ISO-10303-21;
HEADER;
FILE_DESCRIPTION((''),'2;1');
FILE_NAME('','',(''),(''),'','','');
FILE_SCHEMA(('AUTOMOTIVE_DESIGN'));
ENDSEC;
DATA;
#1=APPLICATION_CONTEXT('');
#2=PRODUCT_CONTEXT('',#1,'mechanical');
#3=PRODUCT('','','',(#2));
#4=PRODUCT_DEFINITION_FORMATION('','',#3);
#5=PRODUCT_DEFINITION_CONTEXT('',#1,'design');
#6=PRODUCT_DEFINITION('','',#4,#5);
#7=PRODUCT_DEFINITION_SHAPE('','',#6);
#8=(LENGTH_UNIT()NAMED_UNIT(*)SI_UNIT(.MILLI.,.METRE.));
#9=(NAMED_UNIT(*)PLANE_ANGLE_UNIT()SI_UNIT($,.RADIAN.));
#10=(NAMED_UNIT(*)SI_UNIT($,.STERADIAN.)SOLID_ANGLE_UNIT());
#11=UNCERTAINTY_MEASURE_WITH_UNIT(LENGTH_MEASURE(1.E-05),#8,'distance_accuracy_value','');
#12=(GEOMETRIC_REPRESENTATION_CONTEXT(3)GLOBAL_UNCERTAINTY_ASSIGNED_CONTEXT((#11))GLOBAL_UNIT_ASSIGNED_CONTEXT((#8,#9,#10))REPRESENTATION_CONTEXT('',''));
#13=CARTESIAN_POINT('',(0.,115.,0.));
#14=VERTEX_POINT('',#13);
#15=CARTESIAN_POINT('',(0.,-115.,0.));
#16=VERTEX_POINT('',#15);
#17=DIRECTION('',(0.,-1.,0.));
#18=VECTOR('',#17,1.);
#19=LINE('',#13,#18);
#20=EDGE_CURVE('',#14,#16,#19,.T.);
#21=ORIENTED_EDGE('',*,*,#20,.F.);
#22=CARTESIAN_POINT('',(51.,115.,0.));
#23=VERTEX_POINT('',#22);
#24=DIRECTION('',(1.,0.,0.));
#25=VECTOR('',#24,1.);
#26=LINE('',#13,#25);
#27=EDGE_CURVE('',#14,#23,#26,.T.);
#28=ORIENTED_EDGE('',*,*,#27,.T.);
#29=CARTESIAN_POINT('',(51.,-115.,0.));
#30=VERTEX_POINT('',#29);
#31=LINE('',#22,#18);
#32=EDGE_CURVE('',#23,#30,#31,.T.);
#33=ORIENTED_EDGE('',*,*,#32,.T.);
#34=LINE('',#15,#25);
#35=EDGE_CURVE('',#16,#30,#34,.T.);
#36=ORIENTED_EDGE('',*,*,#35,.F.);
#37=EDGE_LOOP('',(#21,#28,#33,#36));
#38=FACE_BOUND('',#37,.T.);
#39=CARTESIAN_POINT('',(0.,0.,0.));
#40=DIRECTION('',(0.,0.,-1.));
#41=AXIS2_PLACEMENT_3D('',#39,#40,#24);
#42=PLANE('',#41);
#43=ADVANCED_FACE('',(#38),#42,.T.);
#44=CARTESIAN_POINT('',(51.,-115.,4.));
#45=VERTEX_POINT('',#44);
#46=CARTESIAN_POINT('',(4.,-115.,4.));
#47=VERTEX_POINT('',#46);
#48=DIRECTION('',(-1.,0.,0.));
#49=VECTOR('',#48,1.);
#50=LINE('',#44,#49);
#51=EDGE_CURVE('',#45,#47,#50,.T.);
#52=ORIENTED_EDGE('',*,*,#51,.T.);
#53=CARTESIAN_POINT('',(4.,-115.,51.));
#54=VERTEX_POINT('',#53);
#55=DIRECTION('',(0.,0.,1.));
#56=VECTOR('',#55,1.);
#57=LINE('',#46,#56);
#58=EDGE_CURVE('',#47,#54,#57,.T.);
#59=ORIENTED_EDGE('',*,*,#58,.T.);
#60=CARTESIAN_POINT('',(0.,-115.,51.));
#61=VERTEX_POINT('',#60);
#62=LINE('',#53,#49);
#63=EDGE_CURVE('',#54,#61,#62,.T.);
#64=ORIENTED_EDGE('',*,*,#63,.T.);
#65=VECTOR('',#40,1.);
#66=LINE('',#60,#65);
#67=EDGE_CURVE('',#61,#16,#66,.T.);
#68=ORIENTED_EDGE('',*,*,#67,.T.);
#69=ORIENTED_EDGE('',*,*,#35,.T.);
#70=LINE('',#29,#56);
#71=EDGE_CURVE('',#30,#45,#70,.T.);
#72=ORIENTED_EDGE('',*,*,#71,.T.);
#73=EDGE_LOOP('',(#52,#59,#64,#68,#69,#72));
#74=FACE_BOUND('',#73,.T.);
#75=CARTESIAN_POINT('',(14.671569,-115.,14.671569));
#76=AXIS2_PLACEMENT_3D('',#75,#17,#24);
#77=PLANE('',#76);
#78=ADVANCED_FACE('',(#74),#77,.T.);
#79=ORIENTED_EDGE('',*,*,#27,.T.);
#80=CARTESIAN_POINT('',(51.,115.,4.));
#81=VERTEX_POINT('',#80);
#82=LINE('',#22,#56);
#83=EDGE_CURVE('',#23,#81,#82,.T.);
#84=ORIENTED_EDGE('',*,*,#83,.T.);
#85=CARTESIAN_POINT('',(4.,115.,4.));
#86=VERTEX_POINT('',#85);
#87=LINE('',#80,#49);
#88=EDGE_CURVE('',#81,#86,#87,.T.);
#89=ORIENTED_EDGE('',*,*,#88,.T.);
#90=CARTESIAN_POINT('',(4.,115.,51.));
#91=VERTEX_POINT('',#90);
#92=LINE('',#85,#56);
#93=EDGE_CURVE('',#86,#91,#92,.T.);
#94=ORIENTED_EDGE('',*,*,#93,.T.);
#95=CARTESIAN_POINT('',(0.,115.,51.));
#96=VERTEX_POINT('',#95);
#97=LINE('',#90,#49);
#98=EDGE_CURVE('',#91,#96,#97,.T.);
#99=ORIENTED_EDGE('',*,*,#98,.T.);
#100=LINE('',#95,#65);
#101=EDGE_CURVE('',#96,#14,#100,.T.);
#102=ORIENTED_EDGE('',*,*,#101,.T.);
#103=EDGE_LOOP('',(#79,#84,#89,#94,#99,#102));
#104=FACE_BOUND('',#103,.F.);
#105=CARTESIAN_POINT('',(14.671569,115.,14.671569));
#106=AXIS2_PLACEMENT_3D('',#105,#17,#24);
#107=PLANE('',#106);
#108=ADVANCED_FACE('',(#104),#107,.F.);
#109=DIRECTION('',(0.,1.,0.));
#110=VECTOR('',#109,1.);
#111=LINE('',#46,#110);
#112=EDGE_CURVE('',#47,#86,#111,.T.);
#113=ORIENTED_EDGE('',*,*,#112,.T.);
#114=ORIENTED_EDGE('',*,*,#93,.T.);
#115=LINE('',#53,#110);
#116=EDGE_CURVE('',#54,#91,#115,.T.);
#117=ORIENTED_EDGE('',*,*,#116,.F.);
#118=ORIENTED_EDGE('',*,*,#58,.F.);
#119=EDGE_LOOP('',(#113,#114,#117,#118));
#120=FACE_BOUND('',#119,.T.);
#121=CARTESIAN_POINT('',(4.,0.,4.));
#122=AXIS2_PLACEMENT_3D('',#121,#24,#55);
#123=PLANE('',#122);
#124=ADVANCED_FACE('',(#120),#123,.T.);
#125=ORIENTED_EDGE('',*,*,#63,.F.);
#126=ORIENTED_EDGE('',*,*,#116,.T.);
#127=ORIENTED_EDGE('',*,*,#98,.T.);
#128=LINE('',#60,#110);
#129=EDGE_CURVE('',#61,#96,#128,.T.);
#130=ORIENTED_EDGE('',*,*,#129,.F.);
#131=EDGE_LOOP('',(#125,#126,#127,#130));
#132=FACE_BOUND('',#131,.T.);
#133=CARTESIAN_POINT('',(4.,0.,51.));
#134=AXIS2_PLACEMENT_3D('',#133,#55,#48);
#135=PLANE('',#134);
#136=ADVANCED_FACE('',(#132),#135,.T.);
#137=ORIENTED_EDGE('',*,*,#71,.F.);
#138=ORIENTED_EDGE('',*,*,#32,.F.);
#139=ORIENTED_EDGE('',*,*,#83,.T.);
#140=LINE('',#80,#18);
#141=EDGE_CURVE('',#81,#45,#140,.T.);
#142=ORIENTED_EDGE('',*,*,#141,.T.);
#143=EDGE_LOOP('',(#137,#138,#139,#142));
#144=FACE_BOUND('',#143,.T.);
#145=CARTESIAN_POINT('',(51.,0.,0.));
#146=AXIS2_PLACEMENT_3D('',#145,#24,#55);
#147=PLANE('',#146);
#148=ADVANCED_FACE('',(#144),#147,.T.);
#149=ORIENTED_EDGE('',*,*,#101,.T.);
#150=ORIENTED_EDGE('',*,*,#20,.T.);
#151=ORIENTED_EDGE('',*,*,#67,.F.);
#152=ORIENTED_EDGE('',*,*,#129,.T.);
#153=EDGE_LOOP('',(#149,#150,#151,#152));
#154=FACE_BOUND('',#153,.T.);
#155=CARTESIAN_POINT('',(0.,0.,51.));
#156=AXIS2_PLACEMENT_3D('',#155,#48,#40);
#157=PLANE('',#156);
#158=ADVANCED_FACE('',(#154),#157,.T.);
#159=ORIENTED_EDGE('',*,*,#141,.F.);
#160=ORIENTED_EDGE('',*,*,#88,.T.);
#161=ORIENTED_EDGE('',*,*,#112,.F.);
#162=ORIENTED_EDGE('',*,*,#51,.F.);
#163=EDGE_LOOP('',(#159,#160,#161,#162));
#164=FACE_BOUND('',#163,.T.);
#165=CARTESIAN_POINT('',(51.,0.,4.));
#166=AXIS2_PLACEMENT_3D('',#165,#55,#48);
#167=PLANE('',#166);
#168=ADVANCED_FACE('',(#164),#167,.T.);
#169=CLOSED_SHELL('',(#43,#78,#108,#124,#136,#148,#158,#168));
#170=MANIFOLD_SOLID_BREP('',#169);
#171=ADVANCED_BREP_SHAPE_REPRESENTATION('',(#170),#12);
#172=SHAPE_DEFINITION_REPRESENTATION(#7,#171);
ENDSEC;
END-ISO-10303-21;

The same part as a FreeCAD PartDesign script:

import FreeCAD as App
import Part
import Sketcher
Q = App.Units.Quantity

doc = App.newDocument("Part")
body = doc.addObject("PartDesign::Body", "Body")

# Sketch on XZ plane
sketch1 = body.newObject("Sketcher::SketchObject", "Sketch")
sketch1.AttachmentSupport = (doc.getObject("XZ_Plane"), [""])
sketch1.MapMode = "FlatFace"
sketch1.addGeometry([
    Part.LineSegment(App.Vector(0, 51, 0), App.Vector(0, 0, 0)),  # 0
    Part.LineSegment(App.Vector(0, 0, 0), App.Vector(51, 0, 0)),  # 1
    Part.LineSegment(App.Vector(51, 0, 0), App.Vector(51, 4, 0)),  # 2
    Part.LineSegment(App.Vector(51, 4, 0), App.Vector(4, 4, 0)),  # 3
    Part.LineSegment(App.Vector(4, 4, 0), App.Vector(4, 51, 0)),  # 4
    Part.LineSegment(App.Vector(4, 51, 0), App.Vector(0, 51, 0)),  # 5
], False)
sketch1.addConstraint([
    Sketcher.Constraint("Coincident", 0, 2, 1, 1),
    Sketcher.Constraint("Coincident", 1, 2, 2, 1),
    Sketcher.Constraint("Coincident", 2, 2, 3, 1),
    Sketcher.Constraint("Coincident", 3, 2, 4, 1),
    Sketcher.Constraint("Coincident", 4, 2, 5, 1),
    Sketcher.Constraint("Coincident", 5, 2, 0, 1),
    Sketcher.Constraint("Vertical", 0),
    Sketcher.Constraint("Horizontal", 1),
    Sketcher.Constraint("Vertical", 2),
    Sketcher.Constraint("Horizontal", 3),
    Sketcher.Constraint("Vertical", 4),
    Sketcher.Constraint("Horizontal", 5),
    Sketcher.Constraint("Coincident", 0, 2, -1, 1),
    Sketcher.Constraint("Equal", 1, 0),
    Sketcher.Constraint("Equal", 5, 2),
    Sketcher.Constraint("DistanceX", 1, 1, 1, 2, Q("51 mm")),
    Sketcher.Constraint("DistanceX", 3, 2, 3, 1, Q("47 mm")),
])
pad1 = body.newObject("PartDesign::Pad", "Pad")
pad1.Profile = sketch1
pad1.Length = 230
pad1.Midplane = True

doc.recompute()
